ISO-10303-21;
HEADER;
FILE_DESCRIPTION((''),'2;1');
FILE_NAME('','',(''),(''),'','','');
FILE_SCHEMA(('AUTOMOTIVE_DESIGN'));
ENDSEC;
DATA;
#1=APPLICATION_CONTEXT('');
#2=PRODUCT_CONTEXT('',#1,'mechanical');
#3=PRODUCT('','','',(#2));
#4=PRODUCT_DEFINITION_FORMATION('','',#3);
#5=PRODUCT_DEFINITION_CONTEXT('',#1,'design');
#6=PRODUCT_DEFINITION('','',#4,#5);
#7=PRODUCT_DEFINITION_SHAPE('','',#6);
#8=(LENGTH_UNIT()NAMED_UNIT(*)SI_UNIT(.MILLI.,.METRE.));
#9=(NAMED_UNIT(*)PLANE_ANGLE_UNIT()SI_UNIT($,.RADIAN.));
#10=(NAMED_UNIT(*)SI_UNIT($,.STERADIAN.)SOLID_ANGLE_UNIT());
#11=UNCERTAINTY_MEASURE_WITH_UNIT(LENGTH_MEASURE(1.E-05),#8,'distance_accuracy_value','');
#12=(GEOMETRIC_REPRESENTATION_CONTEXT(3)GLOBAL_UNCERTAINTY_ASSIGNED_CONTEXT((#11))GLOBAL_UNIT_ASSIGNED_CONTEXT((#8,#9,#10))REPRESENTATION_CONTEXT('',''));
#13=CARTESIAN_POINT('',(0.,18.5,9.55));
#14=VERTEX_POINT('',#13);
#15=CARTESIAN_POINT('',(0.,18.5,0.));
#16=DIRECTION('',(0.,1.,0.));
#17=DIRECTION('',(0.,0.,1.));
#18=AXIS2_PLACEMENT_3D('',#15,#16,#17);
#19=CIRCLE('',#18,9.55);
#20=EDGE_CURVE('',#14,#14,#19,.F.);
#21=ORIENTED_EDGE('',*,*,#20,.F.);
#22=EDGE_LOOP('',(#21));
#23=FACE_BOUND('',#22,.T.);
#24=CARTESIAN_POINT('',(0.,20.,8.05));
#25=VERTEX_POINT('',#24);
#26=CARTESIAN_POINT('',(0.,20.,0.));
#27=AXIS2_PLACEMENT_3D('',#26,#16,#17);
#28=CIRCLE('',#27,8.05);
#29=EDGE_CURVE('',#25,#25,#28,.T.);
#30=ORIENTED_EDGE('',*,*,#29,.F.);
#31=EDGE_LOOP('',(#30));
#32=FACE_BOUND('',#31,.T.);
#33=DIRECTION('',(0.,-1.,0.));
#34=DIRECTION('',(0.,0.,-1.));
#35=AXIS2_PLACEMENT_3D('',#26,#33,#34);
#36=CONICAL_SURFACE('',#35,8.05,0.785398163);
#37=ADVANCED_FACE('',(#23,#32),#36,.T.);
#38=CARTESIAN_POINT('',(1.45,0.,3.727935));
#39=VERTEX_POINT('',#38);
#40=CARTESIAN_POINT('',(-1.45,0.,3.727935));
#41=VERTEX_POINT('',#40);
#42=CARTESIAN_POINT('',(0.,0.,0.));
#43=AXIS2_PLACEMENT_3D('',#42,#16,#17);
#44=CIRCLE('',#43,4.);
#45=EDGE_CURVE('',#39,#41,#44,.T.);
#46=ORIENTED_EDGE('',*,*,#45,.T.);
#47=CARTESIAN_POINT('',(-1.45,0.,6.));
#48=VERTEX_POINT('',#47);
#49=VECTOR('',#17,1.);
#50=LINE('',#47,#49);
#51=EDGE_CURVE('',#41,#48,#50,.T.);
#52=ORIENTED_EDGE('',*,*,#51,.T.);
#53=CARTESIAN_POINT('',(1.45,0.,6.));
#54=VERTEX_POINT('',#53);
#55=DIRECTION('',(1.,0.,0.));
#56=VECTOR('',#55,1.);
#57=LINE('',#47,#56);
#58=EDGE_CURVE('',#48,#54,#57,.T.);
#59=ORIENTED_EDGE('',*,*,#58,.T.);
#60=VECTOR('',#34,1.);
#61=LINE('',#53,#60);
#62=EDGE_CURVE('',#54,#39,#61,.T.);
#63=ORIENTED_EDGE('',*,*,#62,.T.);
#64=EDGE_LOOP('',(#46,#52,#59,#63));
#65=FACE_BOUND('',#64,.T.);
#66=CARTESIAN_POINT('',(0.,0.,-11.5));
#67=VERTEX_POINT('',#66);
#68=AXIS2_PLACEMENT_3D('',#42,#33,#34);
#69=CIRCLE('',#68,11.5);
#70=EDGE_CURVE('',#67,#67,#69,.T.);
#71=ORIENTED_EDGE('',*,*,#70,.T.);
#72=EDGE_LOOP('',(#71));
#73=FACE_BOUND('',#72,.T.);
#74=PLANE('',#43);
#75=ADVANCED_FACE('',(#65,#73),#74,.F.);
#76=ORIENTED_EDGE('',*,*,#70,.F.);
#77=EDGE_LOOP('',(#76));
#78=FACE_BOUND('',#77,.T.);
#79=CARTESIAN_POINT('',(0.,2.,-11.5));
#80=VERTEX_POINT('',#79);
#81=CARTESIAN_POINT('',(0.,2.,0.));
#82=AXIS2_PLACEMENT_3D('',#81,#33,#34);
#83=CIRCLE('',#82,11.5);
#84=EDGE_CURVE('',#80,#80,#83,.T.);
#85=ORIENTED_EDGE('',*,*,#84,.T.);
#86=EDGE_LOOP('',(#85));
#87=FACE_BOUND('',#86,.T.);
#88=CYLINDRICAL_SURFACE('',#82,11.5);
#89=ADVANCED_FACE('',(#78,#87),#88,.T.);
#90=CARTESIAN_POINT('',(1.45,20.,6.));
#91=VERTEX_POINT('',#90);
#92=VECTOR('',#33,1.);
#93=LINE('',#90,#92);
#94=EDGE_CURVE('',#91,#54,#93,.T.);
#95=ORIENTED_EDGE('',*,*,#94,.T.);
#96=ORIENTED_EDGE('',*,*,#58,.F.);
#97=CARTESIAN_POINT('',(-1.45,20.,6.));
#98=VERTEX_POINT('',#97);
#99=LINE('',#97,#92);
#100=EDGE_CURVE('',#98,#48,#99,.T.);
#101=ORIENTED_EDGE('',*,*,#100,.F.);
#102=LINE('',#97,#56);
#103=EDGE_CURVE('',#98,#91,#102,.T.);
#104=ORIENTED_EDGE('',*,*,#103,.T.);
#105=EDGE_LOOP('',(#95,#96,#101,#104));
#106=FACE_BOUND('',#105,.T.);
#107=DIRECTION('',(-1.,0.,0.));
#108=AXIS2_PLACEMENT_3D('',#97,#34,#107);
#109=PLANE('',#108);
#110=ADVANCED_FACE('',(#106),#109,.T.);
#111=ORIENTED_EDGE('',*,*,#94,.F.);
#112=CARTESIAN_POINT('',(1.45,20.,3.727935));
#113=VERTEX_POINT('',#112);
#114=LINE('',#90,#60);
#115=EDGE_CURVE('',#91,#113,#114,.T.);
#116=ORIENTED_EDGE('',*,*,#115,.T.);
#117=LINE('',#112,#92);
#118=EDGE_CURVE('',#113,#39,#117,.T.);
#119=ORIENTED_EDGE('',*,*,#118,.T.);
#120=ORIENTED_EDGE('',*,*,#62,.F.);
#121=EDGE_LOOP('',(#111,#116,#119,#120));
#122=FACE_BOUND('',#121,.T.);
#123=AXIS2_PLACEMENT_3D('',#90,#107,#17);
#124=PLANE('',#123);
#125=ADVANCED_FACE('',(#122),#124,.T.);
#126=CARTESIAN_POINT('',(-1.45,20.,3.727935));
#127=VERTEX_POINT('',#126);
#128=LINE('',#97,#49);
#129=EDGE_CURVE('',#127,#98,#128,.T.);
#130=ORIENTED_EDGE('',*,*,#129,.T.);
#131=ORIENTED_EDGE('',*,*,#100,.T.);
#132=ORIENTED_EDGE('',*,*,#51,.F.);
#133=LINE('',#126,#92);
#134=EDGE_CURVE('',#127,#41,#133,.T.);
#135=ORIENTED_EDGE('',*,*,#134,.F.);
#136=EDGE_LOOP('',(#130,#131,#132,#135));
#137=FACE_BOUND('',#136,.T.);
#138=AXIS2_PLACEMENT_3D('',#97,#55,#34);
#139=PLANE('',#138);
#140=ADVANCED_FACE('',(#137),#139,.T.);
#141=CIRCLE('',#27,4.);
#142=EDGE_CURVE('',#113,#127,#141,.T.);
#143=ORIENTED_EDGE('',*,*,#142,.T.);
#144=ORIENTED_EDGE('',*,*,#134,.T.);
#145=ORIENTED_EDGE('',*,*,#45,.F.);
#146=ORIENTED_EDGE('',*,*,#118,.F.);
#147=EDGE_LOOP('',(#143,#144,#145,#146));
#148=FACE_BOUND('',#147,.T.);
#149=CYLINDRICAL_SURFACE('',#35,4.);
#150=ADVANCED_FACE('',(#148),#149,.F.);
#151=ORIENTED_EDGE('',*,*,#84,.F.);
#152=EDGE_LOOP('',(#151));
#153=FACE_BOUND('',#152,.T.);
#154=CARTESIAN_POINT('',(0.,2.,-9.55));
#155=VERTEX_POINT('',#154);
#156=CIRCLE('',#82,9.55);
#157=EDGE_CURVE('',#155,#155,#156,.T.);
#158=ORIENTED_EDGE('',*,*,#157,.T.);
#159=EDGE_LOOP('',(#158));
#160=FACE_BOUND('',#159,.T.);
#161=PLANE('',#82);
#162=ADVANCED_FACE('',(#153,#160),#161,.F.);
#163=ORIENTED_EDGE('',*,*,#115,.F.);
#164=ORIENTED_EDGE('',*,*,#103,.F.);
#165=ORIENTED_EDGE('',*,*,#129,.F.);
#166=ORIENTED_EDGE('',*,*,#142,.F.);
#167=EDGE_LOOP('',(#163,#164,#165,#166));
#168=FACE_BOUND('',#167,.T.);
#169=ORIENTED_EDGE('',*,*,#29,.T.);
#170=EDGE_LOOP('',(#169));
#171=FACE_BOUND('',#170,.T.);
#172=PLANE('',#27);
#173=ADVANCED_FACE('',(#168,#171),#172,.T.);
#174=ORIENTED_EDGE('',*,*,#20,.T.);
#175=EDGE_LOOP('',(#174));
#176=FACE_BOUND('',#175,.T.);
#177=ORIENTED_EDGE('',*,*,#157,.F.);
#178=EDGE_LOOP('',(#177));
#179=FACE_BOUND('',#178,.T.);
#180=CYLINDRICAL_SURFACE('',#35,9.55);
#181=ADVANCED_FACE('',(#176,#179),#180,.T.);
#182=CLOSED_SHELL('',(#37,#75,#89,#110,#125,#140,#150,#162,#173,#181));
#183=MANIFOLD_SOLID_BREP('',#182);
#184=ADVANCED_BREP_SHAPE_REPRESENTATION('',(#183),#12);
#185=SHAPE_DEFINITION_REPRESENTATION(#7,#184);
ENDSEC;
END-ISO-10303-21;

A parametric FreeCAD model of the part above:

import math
import FreeCAD as App
import Part
import Sketcher

V = App.Vector
Q = App.Units.Quantity


def edges_at(feature, points):
    """Names of the edges that pass closest to the given points."""
    edges = feature.Shape.Edges
    near = lambda p: min(range(len(edges)), key=lambda i: edges[i].distToShape(Part.Vertex(*p))[0])
    return sorted({f"Edge{near(p) + 1}" for p in points})

doc = App.newDocument("Part")
params = doc.addObject("Spreadsheet::Sheet", "Params")
for row, (alias, value) in enumerate([
    ("sketch1_radius", "4 mm"),
    ("sketch1_diameter", "19.1 mm"),
    ("sketch1_width", "2.9 mm"),
    ("pad1_length", "20 mm"),
    ("chamfer_size", "1.5 mm"),
    ("sketch2_diameter", "23 mm"),
    ("sketch2_diameter2", "19.1 mm"),
    ("pad2_length", "2 mm"),
], start=1):
    params.set(f"A{row}", alias)
    params.set(f"B{row}", "=" + value)
    params.setAlias(f"B{row}", alias)

body = doc.addObject("PartDesign::Body", "Body")

# Sketch on XZ plane
sketch1 = body.newObject("Sketcher::SketchObject", "Sketch")
sketch1.AttachmentSupport = (doc.getObject("XZ_Plane"), [""])
sketch1.MapMode = "FlatFace"
sketch1.addGeometry([
    Part.Circle(V(0, 0, 0), V(0, 0, 1), 9.6),  # 0
    Part.LineSegment(V(1.4, 6, 0), V(-1.4, 6, 0)),  # 1
    Part.LineSegment(V(-1.4, 6, 0), V(-1.4, 3.7, 0)),  # 2
    Part.ArcOfCircle(Part.Circle(V(0, 0, 0), V(0, 0, 1), 4), math.radians(111), math.radians(429)),  # 3
    Part.LineSegment(V(1.4, 3.7, 0), V(1.4, 6, 0)),  # 4
], False)
sketch1.addConstraint([
    Sketcher.Constraint("Coincident", 1, 2, 2, 1),
    Sketcher.Constraint("Coincident", 2, 2, 3, 1),
    Sketcher.Constraint("Coincident", 3, 2, 4, 1),
    Sketcher.Constraint("Coincident", 4, 2, 1, 1),
    Sketcher.Constraint("Horizontal", 1),
    Sketcher.Constraint("Vertical", 2),
    Sketcher.Constraint("Vertical", 4),
    Sketcher.Constraint("Coincident", 0, 3, -1, 1),
    Sketcher.Constraint("Coincident", 3, 3, -1, 1),
    Sketcher.Constraint("Horizontal", 2, 2, 3, 2),
    Sketcher.Constraint("Radius", 3, Q("4 mm")),
    Sketcher.Constraint("Diameter", 0, Q("19.1 mm")),
    Sketcher.Constraint("DistanceX", 1, 2, 1, 1, Q("2.9 mm")),
    Sketcher.Constraint("DistanceY", -1, 1, 1, 2, Q("6 mm")),
])
sketch1.setExpression("Constraints[10]", "Params.sketch1_radius")
sketch1.setExpression("Constraints[11]", "Params.sketch1_diameter")
sketch1.setExpression("Constraints[12]", "Params.sketch1_width")
pad1 = body.newObject("PartDesign::Pad", "Pad")
pad1.Profile = sketch1
pad1.setExpression("Length", "Params.pad1_length")
pad1.Reversed = True
doc.recompute()

chamfer = body.newObject("PartDesign::Chamfer", "Chamfer")
chamfer.Base = (pad1, edges_at(pad1, [(0, 20, -9.55)]))
chamfer.setExpression("Size", "Params.chamfer_size")

# Sketch on XZ plane
sketch2 = body.newObject("Sketcher::SketchObject", "Sketch001")
sketch2.AttachmentSupport = (doc.getObject("XZ_Plane"), [""])
sketch2.MapMode = "FlatFace"
sketch2.addGeometry([
    Part.Circle(V(0, 0, 0), V(0, 0, 1), 12),
    Part.Circle(V(0, 0, 0), V(0, 0, 1), 10),
], False)
sketch2.addConstraint([
    Sketcher.Constraint("Coincident", 0, 3, -1, 1),
    Sketcher.Constraint("Coincident", 1, 3, -1, 1),
    Sketcher.Constraint("Diameter", 0, Q("23 mm")),
    Sketcher.Constraint("Diameter", 1, Q("19.1 mm")),
])
sketch2.setExpression("Constraints[2]", "Params.sketch2_diameter")
sketch2.setExpression("Constraints[3]", "Params.sketch2_diameter2")
pad2 = body.newObject("PartDesign::Pad", "Pad001")
pad2.Profile = sketch2
pad2.setExpression("Length", "Params.pad2_length")
pad2.Reversed = True

doc.recompute()
